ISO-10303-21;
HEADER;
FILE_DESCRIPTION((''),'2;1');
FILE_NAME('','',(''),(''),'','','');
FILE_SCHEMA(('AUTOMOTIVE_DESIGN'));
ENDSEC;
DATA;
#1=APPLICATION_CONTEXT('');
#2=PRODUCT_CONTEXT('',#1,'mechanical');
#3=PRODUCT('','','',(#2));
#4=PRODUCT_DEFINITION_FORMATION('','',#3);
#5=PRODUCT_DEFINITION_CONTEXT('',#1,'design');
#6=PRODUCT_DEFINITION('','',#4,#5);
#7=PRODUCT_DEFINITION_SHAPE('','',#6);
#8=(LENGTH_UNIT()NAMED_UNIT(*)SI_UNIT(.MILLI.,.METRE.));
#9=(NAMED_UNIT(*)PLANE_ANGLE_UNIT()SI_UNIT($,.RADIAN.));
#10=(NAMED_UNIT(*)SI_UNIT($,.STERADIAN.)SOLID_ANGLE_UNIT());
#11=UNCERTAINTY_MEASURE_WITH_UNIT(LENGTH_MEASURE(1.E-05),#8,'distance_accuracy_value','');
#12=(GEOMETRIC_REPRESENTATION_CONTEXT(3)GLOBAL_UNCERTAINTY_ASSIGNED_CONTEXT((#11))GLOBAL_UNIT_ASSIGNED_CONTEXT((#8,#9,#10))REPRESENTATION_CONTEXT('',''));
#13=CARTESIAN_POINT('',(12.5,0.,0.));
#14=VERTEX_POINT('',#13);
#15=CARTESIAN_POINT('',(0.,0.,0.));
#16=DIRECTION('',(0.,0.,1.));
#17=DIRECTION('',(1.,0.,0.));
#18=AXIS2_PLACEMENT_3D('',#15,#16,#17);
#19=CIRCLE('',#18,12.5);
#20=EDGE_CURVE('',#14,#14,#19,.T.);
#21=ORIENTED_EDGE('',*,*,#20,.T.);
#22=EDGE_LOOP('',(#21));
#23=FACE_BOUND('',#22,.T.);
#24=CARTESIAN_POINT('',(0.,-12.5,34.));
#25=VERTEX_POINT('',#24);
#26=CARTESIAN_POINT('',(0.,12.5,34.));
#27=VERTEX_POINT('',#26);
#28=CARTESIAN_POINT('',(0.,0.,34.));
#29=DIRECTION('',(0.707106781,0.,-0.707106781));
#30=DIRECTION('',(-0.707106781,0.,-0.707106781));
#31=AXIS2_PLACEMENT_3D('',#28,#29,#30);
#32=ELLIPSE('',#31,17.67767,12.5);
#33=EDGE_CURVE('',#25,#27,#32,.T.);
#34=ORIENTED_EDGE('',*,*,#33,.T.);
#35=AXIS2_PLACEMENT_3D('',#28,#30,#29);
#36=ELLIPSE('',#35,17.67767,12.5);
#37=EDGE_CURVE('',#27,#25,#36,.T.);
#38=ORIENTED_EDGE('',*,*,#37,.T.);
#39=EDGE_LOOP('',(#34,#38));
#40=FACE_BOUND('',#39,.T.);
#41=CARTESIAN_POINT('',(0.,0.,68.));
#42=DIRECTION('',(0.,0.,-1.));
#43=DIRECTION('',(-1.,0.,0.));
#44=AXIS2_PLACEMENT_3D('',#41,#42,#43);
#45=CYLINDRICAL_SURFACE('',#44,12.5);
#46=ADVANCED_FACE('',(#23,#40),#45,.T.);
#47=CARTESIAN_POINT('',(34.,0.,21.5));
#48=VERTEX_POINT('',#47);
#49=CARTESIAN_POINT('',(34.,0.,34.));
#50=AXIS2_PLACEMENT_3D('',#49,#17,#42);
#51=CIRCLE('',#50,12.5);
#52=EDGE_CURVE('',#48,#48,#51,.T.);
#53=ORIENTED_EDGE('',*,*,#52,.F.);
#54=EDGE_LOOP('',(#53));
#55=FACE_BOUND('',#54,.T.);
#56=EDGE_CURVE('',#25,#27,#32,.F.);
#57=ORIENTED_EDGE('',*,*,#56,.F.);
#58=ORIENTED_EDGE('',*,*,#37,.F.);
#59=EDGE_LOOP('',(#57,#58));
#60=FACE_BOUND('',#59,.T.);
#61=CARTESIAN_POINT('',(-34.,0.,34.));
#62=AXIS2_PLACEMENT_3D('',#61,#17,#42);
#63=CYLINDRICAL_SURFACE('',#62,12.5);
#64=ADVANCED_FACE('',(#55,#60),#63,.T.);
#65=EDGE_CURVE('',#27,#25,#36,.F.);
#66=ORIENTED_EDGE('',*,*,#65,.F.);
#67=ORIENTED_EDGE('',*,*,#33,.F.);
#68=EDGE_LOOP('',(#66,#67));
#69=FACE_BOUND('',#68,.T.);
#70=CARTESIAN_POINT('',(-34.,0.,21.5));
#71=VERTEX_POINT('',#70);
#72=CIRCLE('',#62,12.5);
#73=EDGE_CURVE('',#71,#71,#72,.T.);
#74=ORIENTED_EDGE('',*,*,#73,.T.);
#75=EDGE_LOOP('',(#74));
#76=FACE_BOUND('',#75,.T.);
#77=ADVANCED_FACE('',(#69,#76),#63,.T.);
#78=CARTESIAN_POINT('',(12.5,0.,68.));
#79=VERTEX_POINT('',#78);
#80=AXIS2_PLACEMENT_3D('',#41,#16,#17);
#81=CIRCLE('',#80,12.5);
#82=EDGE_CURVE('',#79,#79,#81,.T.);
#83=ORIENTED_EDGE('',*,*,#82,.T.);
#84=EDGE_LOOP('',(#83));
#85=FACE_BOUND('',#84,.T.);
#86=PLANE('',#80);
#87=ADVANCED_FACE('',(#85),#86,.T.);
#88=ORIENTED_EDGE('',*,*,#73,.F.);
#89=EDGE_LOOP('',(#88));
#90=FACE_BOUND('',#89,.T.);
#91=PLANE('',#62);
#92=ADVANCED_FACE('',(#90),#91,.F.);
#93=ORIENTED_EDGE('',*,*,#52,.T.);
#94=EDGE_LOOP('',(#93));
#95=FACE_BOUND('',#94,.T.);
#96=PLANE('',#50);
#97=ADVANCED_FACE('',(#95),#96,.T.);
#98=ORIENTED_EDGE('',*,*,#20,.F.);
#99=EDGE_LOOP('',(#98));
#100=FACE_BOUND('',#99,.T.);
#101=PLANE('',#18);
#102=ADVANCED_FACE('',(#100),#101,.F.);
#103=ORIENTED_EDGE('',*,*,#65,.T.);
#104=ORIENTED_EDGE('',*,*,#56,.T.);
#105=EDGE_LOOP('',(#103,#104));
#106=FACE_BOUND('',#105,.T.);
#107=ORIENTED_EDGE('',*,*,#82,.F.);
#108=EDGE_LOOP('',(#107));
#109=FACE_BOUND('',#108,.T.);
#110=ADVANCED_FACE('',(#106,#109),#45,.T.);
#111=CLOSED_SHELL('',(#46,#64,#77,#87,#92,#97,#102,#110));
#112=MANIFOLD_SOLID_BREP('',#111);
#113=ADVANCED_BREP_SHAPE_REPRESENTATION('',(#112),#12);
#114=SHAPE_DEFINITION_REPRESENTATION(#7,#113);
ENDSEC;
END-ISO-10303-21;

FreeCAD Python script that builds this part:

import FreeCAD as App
import Part
import Sketcher
from FreeCAD import Vector
Q = App.Units.Quantity

doc = App.newDocument("Part")
body = doc.addObject("PartDesign::Body", "Body")

sketch1 = body.newObject("Sketcher::SketchObject", "Sketch")
sketch1.AttachmentSupport = (doc.getObject("XY_Plane"), [""])
sketch1.MapMode = "FlatFace"
sketch1.addGeometry(Part.Circle(Vector(0, 0, 0), Vector(0, 0, 1), 12), False)
sketch1.addConstraint(Sketcher.Constraint("Coincident", 0, 3, -1, 1))
sketch1.addConstraint(Sketcher.Constraint("Diameter", 0, Q("25 mm")))
pad1 = body.newObject("PartDesign::Pad", "Pad")
pad1.Profile = sketch1
pad1.Length = 68

sketch2 = body.newObject("Sketcher::SketchObject", "Sketch001")
sketch2.AttachmentSupport = (doc.getObject("YZ_Plane"), [""])
sketch2.MapMode = "FlatFace"
sketch2.addGeometry(Part.Circle(Vector(0, 34, 0), Vector(0, 0, 1), 12), False)
sketch2.addConstraint(Sketcher.Constraint("PointOnObject", 0, 3, -2))
sketch2.addConstraint(Sketcher.Constraint("Diameter", 0, Q("25 mm")))
sketch2.addConstraint(Sketcher.Constraint("DistanceY", -1, 1, 0, 3, Q("34 mm")))
pad2 = body.newObject("PartDesign::Pad", "Pad001")
pad2.Profile = sketch2
pad2.Type = "TwoLengths"
pad2.Length = 34
pad2.Length2 = 34

doc.recompute()
